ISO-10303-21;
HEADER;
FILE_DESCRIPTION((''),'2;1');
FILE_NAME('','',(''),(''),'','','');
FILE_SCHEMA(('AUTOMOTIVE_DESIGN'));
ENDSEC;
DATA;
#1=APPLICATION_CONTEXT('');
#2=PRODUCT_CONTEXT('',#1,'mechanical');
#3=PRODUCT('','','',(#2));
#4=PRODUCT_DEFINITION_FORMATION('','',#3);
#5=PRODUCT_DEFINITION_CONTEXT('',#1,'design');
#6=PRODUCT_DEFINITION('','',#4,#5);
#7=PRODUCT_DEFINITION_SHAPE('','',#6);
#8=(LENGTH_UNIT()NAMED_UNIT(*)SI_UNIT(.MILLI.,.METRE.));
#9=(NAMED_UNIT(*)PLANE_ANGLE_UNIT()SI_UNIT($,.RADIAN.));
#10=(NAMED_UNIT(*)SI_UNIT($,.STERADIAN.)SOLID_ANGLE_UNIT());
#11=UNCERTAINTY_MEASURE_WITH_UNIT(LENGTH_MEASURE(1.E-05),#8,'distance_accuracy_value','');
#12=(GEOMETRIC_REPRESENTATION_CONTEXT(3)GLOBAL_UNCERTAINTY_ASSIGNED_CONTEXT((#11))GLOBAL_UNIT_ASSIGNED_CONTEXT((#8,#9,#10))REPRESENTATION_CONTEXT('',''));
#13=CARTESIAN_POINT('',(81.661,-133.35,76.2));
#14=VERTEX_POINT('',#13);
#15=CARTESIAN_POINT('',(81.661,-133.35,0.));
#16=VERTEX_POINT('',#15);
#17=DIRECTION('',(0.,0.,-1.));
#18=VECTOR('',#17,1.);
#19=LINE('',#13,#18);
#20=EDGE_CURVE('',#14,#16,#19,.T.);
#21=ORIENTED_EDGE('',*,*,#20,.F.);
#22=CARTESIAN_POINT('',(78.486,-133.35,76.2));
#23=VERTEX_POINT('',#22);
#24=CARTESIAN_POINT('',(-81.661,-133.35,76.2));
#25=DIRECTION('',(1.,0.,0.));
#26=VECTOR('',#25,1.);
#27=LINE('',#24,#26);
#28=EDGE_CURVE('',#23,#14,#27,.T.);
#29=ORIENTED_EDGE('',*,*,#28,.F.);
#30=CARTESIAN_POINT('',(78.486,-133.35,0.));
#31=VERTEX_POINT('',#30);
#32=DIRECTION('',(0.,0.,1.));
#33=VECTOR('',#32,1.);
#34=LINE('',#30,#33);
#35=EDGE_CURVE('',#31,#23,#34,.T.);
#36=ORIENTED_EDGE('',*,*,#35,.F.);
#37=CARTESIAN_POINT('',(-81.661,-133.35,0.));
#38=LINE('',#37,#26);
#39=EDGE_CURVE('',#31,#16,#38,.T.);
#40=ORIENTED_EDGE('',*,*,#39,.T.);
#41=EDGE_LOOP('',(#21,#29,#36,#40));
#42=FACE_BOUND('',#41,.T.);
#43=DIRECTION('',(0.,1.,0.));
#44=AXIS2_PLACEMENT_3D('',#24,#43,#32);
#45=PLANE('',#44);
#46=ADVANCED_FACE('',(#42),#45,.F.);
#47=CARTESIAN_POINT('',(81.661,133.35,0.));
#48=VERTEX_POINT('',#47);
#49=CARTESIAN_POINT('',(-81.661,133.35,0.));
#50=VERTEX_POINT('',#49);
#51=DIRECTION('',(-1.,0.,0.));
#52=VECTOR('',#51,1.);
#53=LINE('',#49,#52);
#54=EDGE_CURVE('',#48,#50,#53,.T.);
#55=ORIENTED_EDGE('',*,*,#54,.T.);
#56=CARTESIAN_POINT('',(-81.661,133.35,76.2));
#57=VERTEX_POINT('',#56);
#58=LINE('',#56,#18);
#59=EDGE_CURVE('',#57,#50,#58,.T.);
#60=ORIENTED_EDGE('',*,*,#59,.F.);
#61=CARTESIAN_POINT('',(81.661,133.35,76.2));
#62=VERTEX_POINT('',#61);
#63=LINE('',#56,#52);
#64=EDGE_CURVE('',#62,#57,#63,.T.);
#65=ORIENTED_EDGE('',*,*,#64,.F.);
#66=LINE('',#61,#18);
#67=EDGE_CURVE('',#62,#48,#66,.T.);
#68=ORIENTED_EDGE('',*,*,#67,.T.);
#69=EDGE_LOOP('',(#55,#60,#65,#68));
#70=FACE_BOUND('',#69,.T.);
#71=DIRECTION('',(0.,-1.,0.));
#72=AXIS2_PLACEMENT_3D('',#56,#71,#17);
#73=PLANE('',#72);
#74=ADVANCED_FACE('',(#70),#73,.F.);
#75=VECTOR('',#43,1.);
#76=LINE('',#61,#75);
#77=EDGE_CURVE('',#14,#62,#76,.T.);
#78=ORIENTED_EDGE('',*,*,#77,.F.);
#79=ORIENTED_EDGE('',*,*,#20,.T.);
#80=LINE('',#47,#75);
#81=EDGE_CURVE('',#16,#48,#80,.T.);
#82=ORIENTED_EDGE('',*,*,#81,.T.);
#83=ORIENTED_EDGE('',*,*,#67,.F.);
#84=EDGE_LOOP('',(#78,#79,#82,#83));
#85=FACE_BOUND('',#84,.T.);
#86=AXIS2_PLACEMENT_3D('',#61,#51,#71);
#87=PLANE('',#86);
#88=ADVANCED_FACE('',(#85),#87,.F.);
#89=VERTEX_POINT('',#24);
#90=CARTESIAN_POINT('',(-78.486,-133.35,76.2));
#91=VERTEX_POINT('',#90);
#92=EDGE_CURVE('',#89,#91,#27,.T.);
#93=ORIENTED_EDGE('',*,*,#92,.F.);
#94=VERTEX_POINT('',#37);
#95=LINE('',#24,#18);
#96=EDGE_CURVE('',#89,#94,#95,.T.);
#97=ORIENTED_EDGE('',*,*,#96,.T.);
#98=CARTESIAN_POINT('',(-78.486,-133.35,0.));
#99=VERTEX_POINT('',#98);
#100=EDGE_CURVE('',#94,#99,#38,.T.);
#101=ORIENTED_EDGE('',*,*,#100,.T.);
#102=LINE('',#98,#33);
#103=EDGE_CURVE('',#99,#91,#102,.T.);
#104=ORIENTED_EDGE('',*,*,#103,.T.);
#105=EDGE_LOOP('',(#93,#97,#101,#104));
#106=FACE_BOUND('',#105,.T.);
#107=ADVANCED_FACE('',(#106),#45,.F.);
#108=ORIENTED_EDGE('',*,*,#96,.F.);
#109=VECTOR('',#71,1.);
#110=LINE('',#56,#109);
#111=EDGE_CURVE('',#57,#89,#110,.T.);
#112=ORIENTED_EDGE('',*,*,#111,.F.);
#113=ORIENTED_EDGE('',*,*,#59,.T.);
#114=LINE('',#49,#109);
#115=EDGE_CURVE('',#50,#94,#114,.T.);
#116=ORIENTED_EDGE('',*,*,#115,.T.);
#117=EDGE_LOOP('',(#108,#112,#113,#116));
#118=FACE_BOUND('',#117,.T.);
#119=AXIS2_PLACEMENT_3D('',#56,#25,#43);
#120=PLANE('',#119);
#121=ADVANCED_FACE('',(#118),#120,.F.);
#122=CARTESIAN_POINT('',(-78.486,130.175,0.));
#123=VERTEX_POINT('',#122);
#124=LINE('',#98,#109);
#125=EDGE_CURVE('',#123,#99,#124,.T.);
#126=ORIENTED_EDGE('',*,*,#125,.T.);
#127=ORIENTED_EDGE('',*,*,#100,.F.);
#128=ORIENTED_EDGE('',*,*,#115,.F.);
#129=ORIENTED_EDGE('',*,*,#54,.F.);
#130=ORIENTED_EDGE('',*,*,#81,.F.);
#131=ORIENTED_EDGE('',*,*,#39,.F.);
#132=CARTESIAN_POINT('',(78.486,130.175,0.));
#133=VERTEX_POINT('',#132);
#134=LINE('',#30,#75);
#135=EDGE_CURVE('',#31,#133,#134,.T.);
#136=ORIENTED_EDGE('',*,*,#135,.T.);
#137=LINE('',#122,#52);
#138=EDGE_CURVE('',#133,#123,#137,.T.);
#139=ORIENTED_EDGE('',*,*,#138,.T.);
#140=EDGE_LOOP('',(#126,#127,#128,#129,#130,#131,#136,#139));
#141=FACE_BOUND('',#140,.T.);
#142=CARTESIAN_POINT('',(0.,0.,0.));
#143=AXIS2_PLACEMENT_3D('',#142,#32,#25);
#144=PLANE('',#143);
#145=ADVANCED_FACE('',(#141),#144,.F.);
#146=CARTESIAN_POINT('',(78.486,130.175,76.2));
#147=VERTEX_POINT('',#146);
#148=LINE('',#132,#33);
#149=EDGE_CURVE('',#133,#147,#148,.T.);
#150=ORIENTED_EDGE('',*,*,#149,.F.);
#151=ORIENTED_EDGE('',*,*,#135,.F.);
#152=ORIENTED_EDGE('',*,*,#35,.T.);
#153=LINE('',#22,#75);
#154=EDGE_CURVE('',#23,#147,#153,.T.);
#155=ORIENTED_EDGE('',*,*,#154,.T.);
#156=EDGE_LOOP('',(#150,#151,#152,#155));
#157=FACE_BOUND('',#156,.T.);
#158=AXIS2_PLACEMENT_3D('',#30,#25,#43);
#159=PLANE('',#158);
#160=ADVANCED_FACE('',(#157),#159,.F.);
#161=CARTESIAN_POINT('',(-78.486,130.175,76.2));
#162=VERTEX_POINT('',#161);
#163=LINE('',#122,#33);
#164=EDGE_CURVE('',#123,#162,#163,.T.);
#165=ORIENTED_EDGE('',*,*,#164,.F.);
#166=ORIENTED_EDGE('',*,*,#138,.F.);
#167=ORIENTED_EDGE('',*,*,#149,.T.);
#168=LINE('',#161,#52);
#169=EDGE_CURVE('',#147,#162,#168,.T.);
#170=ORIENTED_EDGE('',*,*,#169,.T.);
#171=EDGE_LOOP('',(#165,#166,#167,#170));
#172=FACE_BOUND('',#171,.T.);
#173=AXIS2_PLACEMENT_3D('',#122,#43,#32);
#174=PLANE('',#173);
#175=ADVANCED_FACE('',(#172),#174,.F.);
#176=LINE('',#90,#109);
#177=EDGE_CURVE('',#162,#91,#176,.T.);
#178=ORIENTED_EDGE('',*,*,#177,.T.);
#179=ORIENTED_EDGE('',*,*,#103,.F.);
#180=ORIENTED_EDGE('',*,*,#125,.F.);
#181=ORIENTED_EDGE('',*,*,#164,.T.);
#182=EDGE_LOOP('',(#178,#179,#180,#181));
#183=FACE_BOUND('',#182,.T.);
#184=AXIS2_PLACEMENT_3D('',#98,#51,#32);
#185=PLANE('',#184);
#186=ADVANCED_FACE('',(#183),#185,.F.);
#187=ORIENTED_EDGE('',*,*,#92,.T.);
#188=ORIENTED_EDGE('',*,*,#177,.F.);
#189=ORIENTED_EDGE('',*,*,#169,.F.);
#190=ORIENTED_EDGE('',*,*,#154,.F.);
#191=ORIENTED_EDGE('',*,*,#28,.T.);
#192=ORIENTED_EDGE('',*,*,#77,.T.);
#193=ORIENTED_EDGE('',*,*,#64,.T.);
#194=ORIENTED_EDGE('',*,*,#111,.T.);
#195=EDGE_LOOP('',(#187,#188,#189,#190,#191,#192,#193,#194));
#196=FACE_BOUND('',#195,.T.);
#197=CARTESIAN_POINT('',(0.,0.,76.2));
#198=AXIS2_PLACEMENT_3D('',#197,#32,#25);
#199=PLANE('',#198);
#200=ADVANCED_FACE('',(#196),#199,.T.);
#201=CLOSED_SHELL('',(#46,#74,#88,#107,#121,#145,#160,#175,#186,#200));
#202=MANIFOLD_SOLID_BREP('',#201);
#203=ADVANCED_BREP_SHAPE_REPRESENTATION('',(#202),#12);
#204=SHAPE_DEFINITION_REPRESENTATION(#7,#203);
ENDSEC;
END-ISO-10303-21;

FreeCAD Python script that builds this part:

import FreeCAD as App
import Part
import Sketcher
from FreeCAD import Vector
Q = App.Units.Quantity

doc = App.newDocument("Part")
body = doc.addObject("PartDesign::Body", "Body")

# Sketch on XY plane
sketch1 = doc.addObject("Sketcher::SketchObject", "Sketch")
body.addObject(sketch1)
sketch1.AttachmentSupport = (doc.XY_Plane, [""])
sketch1.MapMode = "FlatFace"
sketch1.addGeometry(Part.LineSegment(Vector(-82, 133, 0), Vector(-82, -133, 0)), False)
sketch1.addGeometry(Part.LineSegment(Vector(-82, -133, 0), Vector(82, -133, 0)), False)
sketch1.addGeometry(Part.LineSegment(Vector(82, -133, 0), Vector(82, 133, 0)), False)
sketch1.addGeometry(Part.LineSegment(Vector(82, 133, 0), Vector(-82, 133, 0)), False)
sketch1.addConstraint(Sketcher.Constraint("Coincident", 0, 2, 1, 1))
sketch1.addConstraint(Sketcher.Constraint("Coincident", 1, 2, 2, 1))
sketch1.addConstraint(Sketcher.Constraint("Coincident", 2, 2, 3, 1))
sketch1.addConstraint(Sketcher.Constraint("Coincident", 3, 2, 0, 1))
sketch1.addConstraint(Sketcher.Constraint("Vertical", 0))
sketch1.addConstraint(Sketcher.Constraint("Horizontal", 1))
sketch1.addConstraint(Sketcher.Constraint("Vertical", 2))
sketch1.addConstraint(Sketcher.Constraint("Horizontal", 3))
sketch1.addConstraint(Sketcher.Constraint("Symmetric", 0, 2, 2, 2, -1, 1))
sketch1.addConstraint(Sketcher.Constraint("DistanceY", 0, 2, 0, 1, Q("10.5 in")))
sketch1.addConstraint(Sketcher.Constraint("DistanceX", 1, 1, 1, 2, Q("6.43 in")))
pad1 = doc.addObject("PartDesign::Pad", "Pad")
body.addObject(pad1)
pad1.Profile = sketch1
pad1.Length = Q("3 in")

# Sketch on XY plane
sketch2 = doc.addObject("Sketcher::SketchObject", "Sketch001")
body.addObject(sketch2)
sketch2.AttachmentSupport = (doc.XY_Plane, [""])
sketch2.MapMode = "FlatFace"
sketch2.AttachmentOffset = App.Placement(Vector(0, 0, 3 * 25.4), App.Rotation())
sketch2.addGeometry(Part.LineSegment(Vector(-78, 130, 0), Vector(-78, -133, 0)), False)
sketch2.addGeometry(Part.LineSegment(Vector(-78, -133, 0), Vector(78, -133, 0)), False)
sketch2.addGeometry(Part.LineSegment(Vector(78, -133, 0), Vector(78, 130, 0)), False)
sketch2.addGeometry(Part.LineSegment(Vector(78, 130, 0), Vector(-78, 130, 0)), False)
sketch2.addConstraint(Sketcher.Constraint("Coincident", 0, 2, 1, 1))
sketch2.addConstraint(Sketcher.Constraint("Coincident", 1, 2, 2, 1))
sketch2.addConstraint(Sketcher.Constraint("Coincident", 2, 2, 3, 1))
sketch2.addConstraint(Sketcher.Constraint("Coincident", 3, 2, 0, 1))
sketch2.addConstraint(Sketcher.Constraint("Vertical", 0))
sketch2.addConstraint(Sketcher.Constraint("Horizontal", 1))
sketch2.addConstraint(Sketcher.Constraint("Vertical", 2))
sketch2.addConstraint(Sketcher.Constraint("Horizontal", 3))
sketch2.addConstraint(Sketcher.Constraint("DistanceX", 1, 1, 1, 2, Q("6.18 in")))
sketch2.addConstraint(Sketcher.Constraint("DistanceY", 0, 2, 0, 1, Q("10.375 in")))
sketch2.addConstraint(Sketcher.Constraint("DistanceX", 0, 2, -1, 1, Q("3.09 in")))
sketch2.addConstraint(Sketcher.Constraint("DistanceY", 0, 2, -1, 1, Q("5.25 in")))
pocket1 = doc.addObject("PartDesign::Pocket", "Pocket")
body.addObject(pocket1)
pocket1.Profile = sketch2
pocket1.Length = Q("3 in")

doc.recompute()
